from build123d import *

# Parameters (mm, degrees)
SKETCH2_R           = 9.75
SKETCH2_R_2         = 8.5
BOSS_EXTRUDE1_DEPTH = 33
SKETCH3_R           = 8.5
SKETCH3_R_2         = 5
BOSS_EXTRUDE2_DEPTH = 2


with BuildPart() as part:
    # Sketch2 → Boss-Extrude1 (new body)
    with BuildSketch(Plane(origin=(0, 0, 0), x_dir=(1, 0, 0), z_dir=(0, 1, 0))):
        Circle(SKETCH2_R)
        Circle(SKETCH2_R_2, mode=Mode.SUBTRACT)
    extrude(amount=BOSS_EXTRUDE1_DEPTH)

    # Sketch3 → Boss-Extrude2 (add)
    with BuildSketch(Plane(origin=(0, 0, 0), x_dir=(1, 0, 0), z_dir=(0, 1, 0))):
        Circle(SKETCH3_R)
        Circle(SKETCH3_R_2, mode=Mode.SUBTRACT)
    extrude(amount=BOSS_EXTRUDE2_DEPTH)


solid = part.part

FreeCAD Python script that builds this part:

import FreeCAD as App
import Part
import Sketcher
from FreeCAD import Vector

doc = App.newDocument("Part")
body = doc.addObject("PartDesign::Body", "Body")

# Sketch on XZ plane
sketch1 = body.newObject("Sketcher::SketchObject", "Sketch")
sketch1.AttachmentSupport = (doc.getObject("XZ_Plane"), [""])
sketch1.MapMode = "FlatFace"
sketch1.addGeometry(Part.Circle(Vector(0, 0, 0), Vector(0, 0, 1), 9.75), False)
sketch1.addGeometry(Part.Circle(Vector(0, 0, 0), Vector(0, 0, 1), 8.5), False)
sketch1.addConstraint(Sketcher.Constraint("Coincident", 0, 3, -1, 1))
sketch1.addConstraint(Sketcher.Constraint("Coincident", 1, 3, -1, 1))
sketch1.addConstraint(Sketcher.Constraint("Diameter", 1, 17.0))
sketch1.addConstraint(Sketcher.Constraint("Diameter", 0, 19.5))
pad1 = body.newObject("PartDesign::Pad", "Pad")
pad1.Profile = sketch1
pad1.Length = 33
pad1.Reversed = True

# Sketch on XZ plane
sketch2 = body.newObject("Sketcher::SketchObject", "Sketch001")
sketch2.AttachmentSupport = (doc.getObject("XZ_Plane"), [""])
sketch2.MapMode = "FlatFace"
sketch2.addGeometry(Part.Circle(Vector(0, 0, 0), Vector(0, 0, 1), 8.5), False)
sketch2.addGeometry(Part.Circle(Vector(0, 0, 0), Vector(0, 0, 1), 5), False)
sketch2.addConstraint(Sketcher.Constraint("Coincident", 0, 3, -1, 1))
sketch2.addConstraint(Sketcher.Constraint("Coincident", 1, 3, -1, 1))
sketch2.addConstraint(Sketcher.Constraint("Diameter", 0, 17.0))
sketch2.addConstraint(Sketcher.Constraint("Diameter", 1, 10.0))
pad2 = body.newObject("PartDesign::Pad", "Pad001")
pad2.Profile = sketch2
pad2.Length = 2
pad2.Reversed = True

doc.recompute()
